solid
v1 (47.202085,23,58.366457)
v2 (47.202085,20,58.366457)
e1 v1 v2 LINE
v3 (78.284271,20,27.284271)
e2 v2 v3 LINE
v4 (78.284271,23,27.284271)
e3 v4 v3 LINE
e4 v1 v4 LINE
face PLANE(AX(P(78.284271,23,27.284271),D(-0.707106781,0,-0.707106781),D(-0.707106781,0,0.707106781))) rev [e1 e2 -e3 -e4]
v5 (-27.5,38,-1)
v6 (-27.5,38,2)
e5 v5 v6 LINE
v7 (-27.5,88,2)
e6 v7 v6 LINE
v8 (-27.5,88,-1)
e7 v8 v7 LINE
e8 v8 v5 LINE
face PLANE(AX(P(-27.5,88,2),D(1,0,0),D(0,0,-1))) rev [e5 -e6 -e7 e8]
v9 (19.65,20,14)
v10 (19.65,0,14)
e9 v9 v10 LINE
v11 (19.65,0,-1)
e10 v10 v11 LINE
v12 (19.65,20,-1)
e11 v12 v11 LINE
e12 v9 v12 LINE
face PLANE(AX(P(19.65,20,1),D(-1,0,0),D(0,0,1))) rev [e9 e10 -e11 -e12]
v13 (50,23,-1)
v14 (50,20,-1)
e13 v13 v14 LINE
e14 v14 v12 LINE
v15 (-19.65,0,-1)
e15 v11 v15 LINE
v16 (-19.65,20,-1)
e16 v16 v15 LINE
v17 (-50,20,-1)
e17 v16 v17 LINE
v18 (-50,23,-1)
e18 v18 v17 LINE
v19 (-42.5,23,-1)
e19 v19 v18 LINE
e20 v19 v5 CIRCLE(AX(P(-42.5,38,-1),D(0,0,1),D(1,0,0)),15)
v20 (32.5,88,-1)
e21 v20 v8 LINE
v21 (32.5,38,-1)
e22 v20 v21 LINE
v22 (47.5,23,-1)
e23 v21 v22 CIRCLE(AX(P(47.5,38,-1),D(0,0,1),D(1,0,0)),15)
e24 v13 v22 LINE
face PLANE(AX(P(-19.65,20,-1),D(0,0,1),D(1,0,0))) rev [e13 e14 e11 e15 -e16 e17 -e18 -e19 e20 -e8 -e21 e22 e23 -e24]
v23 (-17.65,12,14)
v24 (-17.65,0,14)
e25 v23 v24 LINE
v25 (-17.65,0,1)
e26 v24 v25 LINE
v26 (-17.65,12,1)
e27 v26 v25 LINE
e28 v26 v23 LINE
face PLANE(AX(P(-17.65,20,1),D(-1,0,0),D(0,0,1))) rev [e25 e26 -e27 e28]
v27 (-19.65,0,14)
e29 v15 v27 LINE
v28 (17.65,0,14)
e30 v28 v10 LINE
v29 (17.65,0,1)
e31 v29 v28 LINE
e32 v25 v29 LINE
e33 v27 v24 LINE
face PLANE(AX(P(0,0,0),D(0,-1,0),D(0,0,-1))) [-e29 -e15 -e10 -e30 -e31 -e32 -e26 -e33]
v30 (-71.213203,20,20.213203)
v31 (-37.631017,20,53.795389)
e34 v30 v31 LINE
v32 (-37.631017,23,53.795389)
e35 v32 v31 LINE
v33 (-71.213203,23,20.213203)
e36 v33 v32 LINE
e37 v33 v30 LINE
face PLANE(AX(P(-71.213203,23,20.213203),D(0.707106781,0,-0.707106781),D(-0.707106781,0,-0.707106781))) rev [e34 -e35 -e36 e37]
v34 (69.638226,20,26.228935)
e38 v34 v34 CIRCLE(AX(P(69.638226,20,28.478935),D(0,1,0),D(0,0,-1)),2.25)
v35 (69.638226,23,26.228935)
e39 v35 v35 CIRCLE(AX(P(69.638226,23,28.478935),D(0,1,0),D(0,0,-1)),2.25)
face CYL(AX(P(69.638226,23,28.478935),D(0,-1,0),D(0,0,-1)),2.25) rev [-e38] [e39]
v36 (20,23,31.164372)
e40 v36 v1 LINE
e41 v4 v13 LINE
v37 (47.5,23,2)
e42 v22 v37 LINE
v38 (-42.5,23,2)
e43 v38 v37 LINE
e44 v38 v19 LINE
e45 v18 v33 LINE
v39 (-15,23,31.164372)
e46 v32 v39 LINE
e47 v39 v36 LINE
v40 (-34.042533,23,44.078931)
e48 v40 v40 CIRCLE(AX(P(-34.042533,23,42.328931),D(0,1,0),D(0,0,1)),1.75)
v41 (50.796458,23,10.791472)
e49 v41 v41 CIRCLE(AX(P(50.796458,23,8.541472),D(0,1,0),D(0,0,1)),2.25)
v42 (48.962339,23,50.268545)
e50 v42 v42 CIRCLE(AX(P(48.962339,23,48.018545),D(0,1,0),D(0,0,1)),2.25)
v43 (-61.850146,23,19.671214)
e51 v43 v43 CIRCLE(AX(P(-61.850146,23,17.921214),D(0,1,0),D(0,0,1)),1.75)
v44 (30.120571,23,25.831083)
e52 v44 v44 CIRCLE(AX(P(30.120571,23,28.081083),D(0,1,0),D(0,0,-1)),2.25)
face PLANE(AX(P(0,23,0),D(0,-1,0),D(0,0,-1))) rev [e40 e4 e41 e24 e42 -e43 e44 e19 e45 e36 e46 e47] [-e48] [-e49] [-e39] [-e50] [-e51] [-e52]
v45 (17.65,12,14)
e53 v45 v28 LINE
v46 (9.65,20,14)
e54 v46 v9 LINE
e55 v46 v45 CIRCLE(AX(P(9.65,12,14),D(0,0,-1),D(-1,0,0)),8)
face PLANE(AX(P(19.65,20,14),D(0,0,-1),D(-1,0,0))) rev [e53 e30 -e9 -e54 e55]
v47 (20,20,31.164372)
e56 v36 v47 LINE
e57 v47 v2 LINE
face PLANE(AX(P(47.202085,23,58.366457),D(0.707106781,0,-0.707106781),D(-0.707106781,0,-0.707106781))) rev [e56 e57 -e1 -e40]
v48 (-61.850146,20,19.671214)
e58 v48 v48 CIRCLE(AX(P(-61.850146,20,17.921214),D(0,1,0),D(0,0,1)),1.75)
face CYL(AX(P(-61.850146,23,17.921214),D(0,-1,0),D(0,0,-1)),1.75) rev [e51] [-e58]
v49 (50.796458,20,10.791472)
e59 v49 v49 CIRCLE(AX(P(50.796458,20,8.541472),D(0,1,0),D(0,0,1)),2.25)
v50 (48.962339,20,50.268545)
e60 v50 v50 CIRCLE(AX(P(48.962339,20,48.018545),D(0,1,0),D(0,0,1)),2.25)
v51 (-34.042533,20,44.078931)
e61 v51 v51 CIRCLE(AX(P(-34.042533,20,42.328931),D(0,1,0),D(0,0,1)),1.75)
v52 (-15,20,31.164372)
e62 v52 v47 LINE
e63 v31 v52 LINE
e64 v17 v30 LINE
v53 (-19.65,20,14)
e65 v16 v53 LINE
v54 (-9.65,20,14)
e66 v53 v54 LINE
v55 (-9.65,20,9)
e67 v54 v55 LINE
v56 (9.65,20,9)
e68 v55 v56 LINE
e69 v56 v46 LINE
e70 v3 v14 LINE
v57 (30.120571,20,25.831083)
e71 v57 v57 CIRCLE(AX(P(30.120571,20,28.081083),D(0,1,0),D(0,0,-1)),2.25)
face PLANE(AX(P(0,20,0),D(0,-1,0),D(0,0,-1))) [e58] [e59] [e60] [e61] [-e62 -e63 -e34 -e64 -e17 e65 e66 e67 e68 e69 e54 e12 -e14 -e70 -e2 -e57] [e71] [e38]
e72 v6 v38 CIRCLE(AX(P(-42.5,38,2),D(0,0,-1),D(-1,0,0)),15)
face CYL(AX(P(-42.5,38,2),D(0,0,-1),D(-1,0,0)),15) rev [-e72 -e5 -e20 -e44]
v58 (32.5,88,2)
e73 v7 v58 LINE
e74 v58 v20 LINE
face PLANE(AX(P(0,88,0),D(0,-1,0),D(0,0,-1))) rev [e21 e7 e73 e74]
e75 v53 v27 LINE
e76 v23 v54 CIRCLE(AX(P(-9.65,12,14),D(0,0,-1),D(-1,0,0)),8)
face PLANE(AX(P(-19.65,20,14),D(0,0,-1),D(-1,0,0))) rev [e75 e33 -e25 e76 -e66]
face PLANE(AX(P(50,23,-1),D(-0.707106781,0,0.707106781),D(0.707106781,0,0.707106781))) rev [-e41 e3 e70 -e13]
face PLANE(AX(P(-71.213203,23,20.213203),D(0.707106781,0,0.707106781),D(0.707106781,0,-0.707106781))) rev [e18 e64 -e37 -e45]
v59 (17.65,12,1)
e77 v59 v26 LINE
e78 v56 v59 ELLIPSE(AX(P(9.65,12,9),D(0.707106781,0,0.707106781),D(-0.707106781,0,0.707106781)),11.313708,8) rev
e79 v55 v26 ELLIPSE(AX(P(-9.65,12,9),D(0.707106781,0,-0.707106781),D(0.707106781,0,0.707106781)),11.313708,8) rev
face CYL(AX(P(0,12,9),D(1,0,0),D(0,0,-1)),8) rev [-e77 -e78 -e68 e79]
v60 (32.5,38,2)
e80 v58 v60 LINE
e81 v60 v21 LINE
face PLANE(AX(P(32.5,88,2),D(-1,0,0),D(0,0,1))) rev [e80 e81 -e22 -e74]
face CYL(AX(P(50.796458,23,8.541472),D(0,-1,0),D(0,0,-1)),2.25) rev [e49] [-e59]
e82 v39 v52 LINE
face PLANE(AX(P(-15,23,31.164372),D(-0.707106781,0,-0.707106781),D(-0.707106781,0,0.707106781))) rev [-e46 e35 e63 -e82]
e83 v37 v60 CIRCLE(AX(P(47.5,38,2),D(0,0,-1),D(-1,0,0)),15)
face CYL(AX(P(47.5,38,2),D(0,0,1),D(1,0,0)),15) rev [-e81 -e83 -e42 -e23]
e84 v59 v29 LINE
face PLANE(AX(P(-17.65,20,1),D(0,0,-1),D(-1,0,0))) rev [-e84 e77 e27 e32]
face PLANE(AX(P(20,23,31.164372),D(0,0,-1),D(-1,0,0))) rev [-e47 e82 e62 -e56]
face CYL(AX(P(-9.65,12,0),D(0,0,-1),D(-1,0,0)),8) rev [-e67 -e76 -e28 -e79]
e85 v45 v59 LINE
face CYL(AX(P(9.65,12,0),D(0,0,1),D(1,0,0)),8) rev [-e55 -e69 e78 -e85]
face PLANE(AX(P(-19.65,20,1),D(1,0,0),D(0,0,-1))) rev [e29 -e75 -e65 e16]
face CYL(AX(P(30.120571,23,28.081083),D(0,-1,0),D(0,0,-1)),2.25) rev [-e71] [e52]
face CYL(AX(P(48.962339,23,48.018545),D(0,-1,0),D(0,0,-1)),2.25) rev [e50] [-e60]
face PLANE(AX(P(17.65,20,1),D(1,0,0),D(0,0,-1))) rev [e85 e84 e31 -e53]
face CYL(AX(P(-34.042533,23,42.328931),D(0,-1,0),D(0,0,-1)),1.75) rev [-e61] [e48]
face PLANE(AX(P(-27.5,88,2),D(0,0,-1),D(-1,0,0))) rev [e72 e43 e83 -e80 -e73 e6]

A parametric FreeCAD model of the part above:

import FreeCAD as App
import Part
import Sketcher
Q = App.Units.Quantity


def edges_at(feature, points):
    """Names of the edges that pass closest to the given points."""
    edges = feature.Shape.Edges
    near = lambda p: min(range(len(edges)), key=lambda i: edges[i].distToShape(Part.Vertex(*p))[0])
    return sorted({f"Edge{near(p) + 1}" for p in points})


def add_polygon(sketch, points):
    """Adds a closed chain of lines whose ends are joined by coincident constraints."""
    first, n = sketch.GeometryCount, len(points)
    for a, b in zip(points, points[1:] + points[:1]):
        sketch.addGeometry(Part.LineSegment(App.Vector(*a, 0), App.Vector(*b, 0)), False)
    for i in range(n):
        sketch.addConstraint(Sketcher.Constraint("Coincident", first + i, 2, first + (i + 1) % n, 1))

doc = App.newDocument("Part")
body = doc.addObject("PartDesign::Body", "Body")

# Sketch on XZ plane
sketch1 = body.newObject("Sketcher::SketchObject", "Sketch")
sketch1.AttachmentSupport = (doc.getObject("XZ_Plane"), [""])
sketch1.MapMode = "FlatFace"
add_polygon(sketch1, [(-17.6, 1), (17.6, 1), (17.6, 14), (19.6, 14), (19.6, -1), (-19.6, -1), (-19.6, 14), (-17.6, 14)])  # lines 0-7
sketch1.addConstraint([
    Sketcher.Constraint("Horizontal", 0),
    Sketcher.Constraint("Vertical", 1),
    Sketcher.Constraint("Horizontal", 2),
    Sketcher.Constraint("Vertical", 3),
    Sketcher.Constraint("Horizontal", 4),
    Sketcher.Constraint("Vertical", 5),
    Sketcher.Constraint("Horizontal", 6),
    Sketcher.Constraint("Vertical", 7),
    Sketcher.Constraint("Symmetric", 2, 2, 5, 2, -2),
    Sketcher.Constraint("Equal", 2, 6),
    Sketcher.Constraint("DistanceX", 2, 1, 2, 2, Q("2 mm")),
    Sketcher.Constraint("DistanceY", 1, 1, 1, 2, Q("13 mm")),
    Sketcher.Constraint("DistanceY", 3, 2, 3, 1, Q("15 mm")),
    Sketcher.Constraint("DistanceX", 0, 1, 0, 2, Q("35.3 mm")),
    Sketcher.Constraint("DistanceY", -1, 1, 0, 2, Q("1 mm")),
])
pad1 = body.newObject("PartDesign::Pad", "Pad")
pad1.Profile = sketch1
pad1.Length = 20
pad1.Reversed = True

# Sketch on XZ plane
sketch2 = body.newObject("Sketcher::SketchObject", "Sketch001")
sketch2.AttachmentSupport = (doc.getObject("XZ_Plane"), [""])
sketch2.MapMode = "FlatFace"
sketch2.AttachmentOffset = App.Placement(App.Vector(0, 0, -20), App.Rotation())
add_polygon(sketch2, [(50, -1), (-50, -1), (-71.2, 20.2), (-37.6, 53.8), (-15, 31.2), (20, 31.2), (47.2, 58.4), (78.3, 27.3)])  # lines 0-7
sketch2.addGeometry(Part.Circle(App.Vector(49, 48, 0), App.Vector(0, 0, 1), 2.2), False)  # 8
sketch2.addGeometry(Part.Circle(App.Vector(69.6, 28.5, 0), App.Vector(0, 0, 1), 2.2), False)  # 9
sketch2.addGeometry(Part.Circle(App.Vector(-34, 42.3, 0), App.Vector(0, 0, 1), 1.8), False)  # 10
sketch2.addGeometry(Part.Circle(App.Vector(30.1, 28.1, 0), App.Vector(0, 0, 1), 2.2), False)  # 11
sketch2.addGeometry(Part.Circle(App.Vector(50.8, 8.5, 0), App.Vector(0, 0, 1), 2.2), False)  # 12
sketch2.addGeometry(Part.Circle(App.Vector(-61.9, 17.9, 0), App.Vector(0, 0, 1), 1.8), False)  # 13
sketch2.addConstraint([
    Sketcher.Constraint("Horizontal", 0),
    Sketcher.Constraint("Horizontal", 4),
    Sketcher.Constraint("Equal", 8, 9),
    Sketcher.Constraint("Equal", 9, 11),
    Sketcher.Constraint("Equal", 11, 12),
    Sketcher.Constraint("Equal", 10, 13),
    Sketcher.Constraint("Perpendicular", 1, 2),
    Sketcher.Constraint("Perpendicular", 2, 3),
    Sketcher.Constraint("Perpendicular", 3, 5),
    Sketcher.Constraint("Perpendicular", 5, 6),
    Sketcher.Constraint("Perpendicular", 6, 7),
    Sketcher.Constraint("Diameter", 8, Q("4.5 mm")),
    Sketcher.Constraint("Diameter", 10, Q("3.5 mm")),
    Sketcher.Constraint("DistanceX", 0, 2, 0, 1, Q("100 mm")),
    Sketcher.Constraint("DistanceX", 4, 1, 4, 2, Q("35 mm")),
    Sketcher.Constraint("Angle", 1, Q("135 deg")),
    Sketcher.Constraint("Distance", 1, Q("30 mm")),
    Sketcher.Constraint("Distance", 7, Q("40 mm")),
    Sketcher.Constraint("DistanceX", 0, 2, -1, 1, Q("50 mm")),
    Sketcher.Constraint("DistanceY", 0, 2, -1, 1, Q("1 mm")),
    Sketcher.Constraint("DistanceX", 3, 2, -1, 1, Q("15 mm")),
    Sketcher.Constraint("DistanceY", 12, 3, 4, 2, Q("22.6229 mm")),
    Sketcher.Constraint("DistanceY", 12, 3, 6, 2, Q("18.742799 mm")),
    Sketcher.Constraint("DistanceX", 11, 3, 6, 2, Q("48.1637 mm")),
    Sketcher.Constraint("DistanceX", -1, 1, 8, 3, Q("48.962339 mm")),
    Sketcher.Constraint("DistanceY", -1, 1, 10, 3, Q("42.328931 mm")),
    Sketcher.Constraint("DistanceX", -1, 1, 12, 3, Q("50.796458 mm")),
    Sketcher.Constraint("DistanceY", 9, 3, 8, 3, Q("19.539611 mm")),
    Sketcher.Constraint("DistanceX", 10, 3, 8, 3, Q("83.004871 mm")),
    Sketcher.Constraint("DistanceX", 10, 3, 9, 3, Q("103.680759 mm")),
    Sketcher.Constraint("DistanceY", 11, 3, 10, 3, Q("14.247848 mm")),
    Sketcher.Constraint("DistanceY", 13, 3, 11, 3, Q("10.159868 mm")),
    Sketcher.Constraint("DistanceY", 13, 3, 8, 3, Q("30.097331 mm")),
    Sketcher.Constraint("DistanceX", 13, 3, 2, 2, Q("24.219129 mm")),
])
pad2 = body.newObject("PartDesign::Pad", "Pad001")
pad2.Profile = sketch2
pad2.Length = 3
pad2.Reversed = True
doc.recompute()

fillet = body.newObject("PartDesign::Fillet", "Fillet")
fillet.Base = (pad2, edges_at(pad2, [(-17.65, 20, 7.5), (0, 20, 1), (17.65, 20, 7.5)]))
fillet.Radius = 8

# Sketch on XZ plane
sketch3 = body.newObject("Sketcher::SketchObject", "Sketch002")
sketch3.AttachmentSupport = (doc.getObject("XZ_Plane"), [""])
sketch3.MapMode = "FlatFace"
sketch3.AttachmentOffset = App.Placement(App.Vector(0, 0, -23), App.Rotation())
add_polygon(sketch3, [(-27.5, -1), (-27.5, 2), (32.5, 2), (32.5, -1)])  # lines 0-3
sketch3.addConstraint([
    Sketcher.Constraint("Vertical", 0),
    Sketcher.Constraint("Horizontal", 1),
    Sketcher.Constraint("Vertical", 2),
    Sketcher.Constraint("Horizontal", 3),
    Sketcher.Constraint("DistanceX", 1, 1, 1, 2, Q("60 mm")),
    Sketcher.Constraint("DistanceY", 0, 1, 0, 2, Q("3 mm")),
    Sketcher.Constraint("DistanceY", -1, 1, 0, 2, Q("2 mm")),
    Sketcher.Constraint("DistanceX", 0, 2, -1, 1, Q("27.5 mm")),
])
pad3 = body.newObject("PartDesign::Pad", "Pad002")
pad3.Profile = sketch3
pad3.Length = 65
pad3.Reversed = True
doc.recompute()

fillet2 = body.newObject("PartDesign::Fillet", "Fillet001")
fillet2.Base = (pad3, edges_at(pad3, [(32.5, 23, 0.5), (-27.5, 23, 0.5)]))
fillet2.Radius = 15

doc.recompute()
